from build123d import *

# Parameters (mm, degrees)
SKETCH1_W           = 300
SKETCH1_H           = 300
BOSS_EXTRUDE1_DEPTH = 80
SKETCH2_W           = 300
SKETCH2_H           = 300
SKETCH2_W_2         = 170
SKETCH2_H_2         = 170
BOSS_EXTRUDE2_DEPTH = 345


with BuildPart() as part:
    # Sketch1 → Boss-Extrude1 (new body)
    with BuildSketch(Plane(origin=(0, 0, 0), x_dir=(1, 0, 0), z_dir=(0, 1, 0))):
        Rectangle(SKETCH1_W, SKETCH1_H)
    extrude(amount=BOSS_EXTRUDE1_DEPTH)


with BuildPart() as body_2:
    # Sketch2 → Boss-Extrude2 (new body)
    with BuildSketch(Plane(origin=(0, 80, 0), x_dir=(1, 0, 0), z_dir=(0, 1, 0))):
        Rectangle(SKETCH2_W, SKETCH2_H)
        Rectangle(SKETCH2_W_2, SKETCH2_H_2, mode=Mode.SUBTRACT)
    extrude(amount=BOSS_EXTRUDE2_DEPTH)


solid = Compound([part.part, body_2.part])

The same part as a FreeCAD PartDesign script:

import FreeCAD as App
import Part
import Sketcher
from FreeCAD import Vector
Q = App.Units.Quantity


def add_polygon(sketch, points):
    """Adds a closed chain of lines whose ends are joined by coincident constraints."""
    first, n = sketch.GeometryCount, len(points)
    for a, b in zip(points, points[1:] + points[:1]):
        sketch.addGeometry(Part.LineSegment(App.Vector(*a, 0), App.Vector(*b, 0)), False)
    for i in range(n):
        sketch.addConstraint(Sketcher.Constraint("Coincident", first + i, 2, first + (i + 1) % n, 1))

doc = App.newDocument("Part")
body = doc.addObject("PartDesign::Body", "Body")

# Sketch on XZ plane
sketch1 = body.newObject("Sketcher::SketchObject", "Sketch")
sketch1.AttachmentSupport = (doc.getObject("XZ_Plane"), [""])
sketch1.MapMode = "FlatFace"
add_polygon(sketch1, [(-150, -150), (-150, 150), (150, 150), (150, -150)])  # lines 0-3
sketch1.addConstraint([
    Sketcher.Constraint("Vertical", 0),
    Sketcher.Constraint("Horizontal", 1),
    Sketcher.Constraint("Vertical", 2),
    Sketcher.Constraint("Horizontal", 3),
    Sketcher.Constraint("Symmetric", 0, 2, 2, 2, -1, 1),
    Sketcher.Constraint("Equal", 3, 0),
    Sketcher.Constraint("DistanceX", 1, 1, 1, 2, Q("300 mm")),
])
pad1 = body.newObject("PartDesign::Pad", "Pad")
pad1.Profile = sketch1
pad1.Length = 80
pad1.Reversed = True
body2 = doc.addObject("PartDesign::Body", "Body001")

# Sketch on XZ plane
sketch2 = body2.newObject("Sketcher::SketchObject", "Sketch001")
sketch2.AttachmentSupport = (doc.getObject("XZ_Plane001"), [""])
sketch2.MapMode = "FlatFace"
sketch2.AttachmentOffset = App.Placement(Vector(0, 0, -80), App.Rotation())
add_polygon(sketch2, [(-150, -150), (-150, 150), (150, 150), (150, -150)])  # lines 0-3
add_polygon(sketch2, [(85, 85), (-85, 85), (-85, -85), (85, -85)])  # lines 4-7
sketch2.addConstraint([
    Sketcher.Constraint("Vertical", 0),
    Sketcher.Constraint("Horizontal", 1),
    Sketcher.Constraint("Vertical", 2),
    Sketcher.Constraint("Horizontal", 3),
    Sketcher.Constraint("Horizontal", 4),
    Sketcher.Constraint("Vertical", 5),
    Sketcher.Constraint("Horizontal", 6),
    Sketcher.Constraint("Vertical", 7),
    Sketcher.Constraint("Symmetric", 0, 2, 2, 2, -1, 1),
    Sketcher.Constraint("Symmetric", 4, 2, 6, 2, -1, 1),
    Sketcher.Constraint("Equal", 3, 0),
    Sketcher.Constraint("Equal", 6, 5),
    Sketcher.Constraint("DistanceX", 1, 1, 1, 2, Q("300 mm")),
    Sketcher.Constraint("DistanceX", 4, 2, 4, 1, Q("170 mm")),
])
pad2 = body2.newObject("PartDesign::Pad", "Pad001")
pad2.Profile = sketch2
pad2.Length = 345
pad2.Reversed = True

doc.recompute()
